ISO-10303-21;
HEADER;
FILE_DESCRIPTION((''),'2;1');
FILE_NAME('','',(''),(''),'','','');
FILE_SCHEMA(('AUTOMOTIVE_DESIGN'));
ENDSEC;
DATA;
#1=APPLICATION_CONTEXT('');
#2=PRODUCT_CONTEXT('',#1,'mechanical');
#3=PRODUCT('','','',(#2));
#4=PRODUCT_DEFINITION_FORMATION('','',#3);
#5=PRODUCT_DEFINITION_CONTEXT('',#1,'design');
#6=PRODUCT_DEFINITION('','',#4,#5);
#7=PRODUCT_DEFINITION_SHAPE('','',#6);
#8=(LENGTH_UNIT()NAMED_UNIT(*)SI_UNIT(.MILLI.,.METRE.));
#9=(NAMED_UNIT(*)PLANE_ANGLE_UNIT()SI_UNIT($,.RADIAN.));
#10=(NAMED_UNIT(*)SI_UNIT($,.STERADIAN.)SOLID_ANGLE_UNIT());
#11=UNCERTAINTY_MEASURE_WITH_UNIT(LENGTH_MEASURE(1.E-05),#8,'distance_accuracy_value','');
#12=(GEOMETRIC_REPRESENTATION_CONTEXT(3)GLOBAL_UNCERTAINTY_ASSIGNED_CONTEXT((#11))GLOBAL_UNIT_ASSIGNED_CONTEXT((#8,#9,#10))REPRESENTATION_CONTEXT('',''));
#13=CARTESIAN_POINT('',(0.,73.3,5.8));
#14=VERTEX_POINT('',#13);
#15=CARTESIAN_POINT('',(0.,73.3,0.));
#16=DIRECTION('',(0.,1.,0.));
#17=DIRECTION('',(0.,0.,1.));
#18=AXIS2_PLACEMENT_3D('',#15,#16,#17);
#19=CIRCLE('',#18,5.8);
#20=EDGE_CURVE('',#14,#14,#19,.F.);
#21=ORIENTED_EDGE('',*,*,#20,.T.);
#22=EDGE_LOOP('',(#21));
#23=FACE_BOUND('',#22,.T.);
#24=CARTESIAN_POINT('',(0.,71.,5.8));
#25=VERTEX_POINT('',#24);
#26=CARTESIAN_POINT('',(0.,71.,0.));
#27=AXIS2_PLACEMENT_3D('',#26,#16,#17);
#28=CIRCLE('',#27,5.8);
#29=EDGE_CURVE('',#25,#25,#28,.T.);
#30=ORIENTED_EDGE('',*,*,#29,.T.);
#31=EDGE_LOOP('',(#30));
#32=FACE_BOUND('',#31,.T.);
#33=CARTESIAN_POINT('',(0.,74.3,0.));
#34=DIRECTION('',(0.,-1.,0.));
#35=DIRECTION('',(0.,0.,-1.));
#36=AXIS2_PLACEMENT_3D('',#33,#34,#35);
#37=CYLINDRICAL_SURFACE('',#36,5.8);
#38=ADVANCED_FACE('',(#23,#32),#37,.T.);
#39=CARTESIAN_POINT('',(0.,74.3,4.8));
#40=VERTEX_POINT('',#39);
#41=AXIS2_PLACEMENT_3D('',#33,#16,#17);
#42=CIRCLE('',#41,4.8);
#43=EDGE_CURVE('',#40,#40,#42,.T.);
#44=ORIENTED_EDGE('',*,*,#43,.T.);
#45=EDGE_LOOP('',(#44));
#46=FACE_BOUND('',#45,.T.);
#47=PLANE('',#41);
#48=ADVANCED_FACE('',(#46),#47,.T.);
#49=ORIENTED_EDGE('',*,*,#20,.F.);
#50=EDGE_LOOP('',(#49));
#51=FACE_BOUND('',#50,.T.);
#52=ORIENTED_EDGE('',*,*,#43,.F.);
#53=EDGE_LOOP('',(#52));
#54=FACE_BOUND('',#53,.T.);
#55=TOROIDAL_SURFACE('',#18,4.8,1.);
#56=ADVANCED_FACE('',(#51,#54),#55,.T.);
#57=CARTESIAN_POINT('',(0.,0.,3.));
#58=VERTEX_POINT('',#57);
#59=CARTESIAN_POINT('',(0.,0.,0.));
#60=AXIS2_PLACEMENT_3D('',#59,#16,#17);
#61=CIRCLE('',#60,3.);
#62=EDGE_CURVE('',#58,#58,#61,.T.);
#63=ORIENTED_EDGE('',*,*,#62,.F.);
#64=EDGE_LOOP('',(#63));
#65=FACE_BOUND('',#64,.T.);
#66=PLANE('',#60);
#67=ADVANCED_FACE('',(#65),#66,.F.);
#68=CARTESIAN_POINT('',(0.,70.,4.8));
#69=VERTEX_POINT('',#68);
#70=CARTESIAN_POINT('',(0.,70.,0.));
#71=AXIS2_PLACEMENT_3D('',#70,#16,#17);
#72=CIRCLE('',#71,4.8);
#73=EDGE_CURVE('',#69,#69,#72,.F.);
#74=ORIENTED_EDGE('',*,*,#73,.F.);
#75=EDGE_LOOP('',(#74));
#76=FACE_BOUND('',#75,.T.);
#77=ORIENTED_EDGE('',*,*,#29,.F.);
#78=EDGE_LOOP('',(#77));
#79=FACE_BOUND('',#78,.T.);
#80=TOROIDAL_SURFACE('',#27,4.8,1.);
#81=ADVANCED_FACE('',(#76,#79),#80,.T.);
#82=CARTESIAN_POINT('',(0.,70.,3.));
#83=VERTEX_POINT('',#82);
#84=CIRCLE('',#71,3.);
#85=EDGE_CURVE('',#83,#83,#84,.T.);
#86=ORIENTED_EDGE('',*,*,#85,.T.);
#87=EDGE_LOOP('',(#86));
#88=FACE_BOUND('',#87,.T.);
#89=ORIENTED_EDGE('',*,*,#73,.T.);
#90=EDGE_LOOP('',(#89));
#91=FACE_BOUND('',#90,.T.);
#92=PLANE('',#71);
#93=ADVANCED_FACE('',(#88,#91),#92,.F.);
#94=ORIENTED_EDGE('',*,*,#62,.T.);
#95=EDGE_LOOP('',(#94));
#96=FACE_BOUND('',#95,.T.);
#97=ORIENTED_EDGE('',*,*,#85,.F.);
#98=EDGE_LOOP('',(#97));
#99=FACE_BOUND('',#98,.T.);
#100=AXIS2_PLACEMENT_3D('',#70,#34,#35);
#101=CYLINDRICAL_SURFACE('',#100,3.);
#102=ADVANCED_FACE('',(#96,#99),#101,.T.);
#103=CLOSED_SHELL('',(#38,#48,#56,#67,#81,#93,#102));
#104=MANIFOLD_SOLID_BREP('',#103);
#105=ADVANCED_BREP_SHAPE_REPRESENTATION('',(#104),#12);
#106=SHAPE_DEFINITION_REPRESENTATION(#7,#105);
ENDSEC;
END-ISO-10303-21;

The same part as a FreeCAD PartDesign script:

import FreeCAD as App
import Part
import Sketcher
from FreeCAD import Vector


def edges_at(feature, points):
    """Names of the edges that pass closest to the given points."""
    edges = feature.Shape.Edges
    near = lambda p: min(range(len(edges)), key=lambda i: edges[i].distToShape(Part.Vertex(*p))[0])
    return sorted({f"Edge{near(p) + 1}" for p in points})

doc = App.newDocument("Part")
params = doc.addObject("Spreadsheet::Sheet", "Params")
for row, (alias, value) in enumerate([
    ("sketch1_diameter", "6 mm"),
    ("pad1_length", "70 mm"),
    ("sketch2_diameter", "11.6 mm"),
    ("pad2_length", "4.3 mm"),
    ("fillet_radius", "1 mm"),
], start=1):
    params.set(f"A{row}", alias)
    params.set(f"B{row}", "=" + value)
    params.setAlias(f"B{row}", alias)

body = doc.addObject("PartDesign::Body", "Body")

# Sketch on XZ plane
sketch1 = body.newObject("Sketcher::SketchObject", "Sketch")
sketch1.AttachmentSupport = (doc.getObject("XZ_Plane"), [""])
sketch1.MapMode = "FlatFace"
sketch1.addGeometry(Part.Circle(Vector(0, 0, 0), Vector(0, 0, 1), 3), False)
sketch1.addConstraint([
    Sketcher.Constraint("Coincident", 0, 3, -1, 1),
    Sketcher.Constraint("Diameter", 0, 6.0),
])
sketch1.setExpression("Constraints[1]", "Params.sketch1_diameter")
pad1 = body.newObject("PartDesign::Pad", "Pad")
pad1.Profile = sketch1
pad1.setExpression("Length", "Params.pad1_length")
pad1.Reversed = True

# Sketch on XZ plane
sketch2 = body.newObject("Sketcher::SketchObject", "Sketch001")
sketch2.AttachmentSupport = (doc.getObject("XZ_Plane"), [""])
sketch2.MapMode = "FlatFace"
sketch2.AttachmentOffset = App.Placement(Vector(0, 0, -70), App.Rotation())
sketch2.addGeometry(Part.Circle(Vector(0, 0, 0), Vector(0, 0, 1), 6), False)
sketch2.addConstraint([
    Sketcher.Constraint("Coincident", 0, 3, -1, 1),
    Sketcher.Constraint("Diameter", 0, 11.6),
])
sketch2.setExpression("Constraints[1]", "Params.sketch2_diameter")
pad2 = body.newObject("PartDesign::Pad", "Pad001")
pad2.Profile = sketch2
pad2.setExpression("Length", "Params.pad2_length")
pad2.Reversed = True
doc.recompute()

fillet = body.newObject("PartDesign::Fillet", "Fillet")
fillet.Base = (pad2, edges_at(pad2, [(0, 70, -5.8), (0, 74.3, -5.8)]))
fillet.setExpression("Radius", "Params.fillet_radius")

doc.recompute()
